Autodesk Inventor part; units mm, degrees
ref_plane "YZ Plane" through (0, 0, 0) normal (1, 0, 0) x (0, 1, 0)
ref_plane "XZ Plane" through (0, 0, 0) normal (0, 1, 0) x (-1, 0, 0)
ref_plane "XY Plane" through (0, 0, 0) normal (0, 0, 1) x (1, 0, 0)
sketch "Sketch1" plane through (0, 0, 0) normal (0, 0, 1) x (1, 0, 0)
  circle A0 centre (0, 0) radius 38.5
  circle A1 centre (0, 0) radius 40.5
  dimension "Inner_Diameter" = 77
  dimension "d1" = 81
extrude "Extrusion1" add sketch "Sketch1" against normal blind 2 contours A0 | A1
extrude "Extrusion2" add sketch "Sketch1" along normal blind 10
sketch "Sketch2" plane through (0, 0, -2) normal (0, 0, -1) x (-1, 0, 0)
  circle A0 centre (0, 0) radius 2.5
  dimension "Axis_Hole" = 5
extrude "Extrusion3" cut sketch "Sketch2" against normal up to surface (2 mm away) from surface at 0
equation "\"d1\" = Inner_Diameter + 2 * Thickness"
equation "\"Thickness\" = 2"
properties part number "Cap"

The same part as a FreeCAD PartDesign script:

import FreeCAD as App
import Part
import Sketcher
Q = App.Units.Quantity

doc = App.newDocument("Part")
body = doc.addObject("PartDesign::Body", "Body")

# Sketch on XY plane
sketch1 = body.newObject("Sketcher::SketchObject", "Sketch")
sketch1.AttachmentSupport = (doc.getObject("XY_Plane"), [""])
sketch1.MapMode = "FlatFace"
sketch1.addGeometry(Part.Circle(App.Vector(0, 0, 0), App.Vector(0, 0, 1), 40), False)
sketch1.addConstraint([
    Sketcher.Constraint("Coincident", 0, 3, -1, 1),
    Sketcher.Constraint("Diameter", 0, Q("81 mm")),
])
pad1 = body.newObject("PartDesign::Pad", "Pad")
pad1.Profile = sketch1
pad1.Length = 2
pad1.Reversed = True

# Sketch on XY plane
sketch2 = body.newObject("Sketcher::SketchObject", "Sketch001")
sketch2.AttachmentSupport = (doc.getObject("XY_Plane"), [""])
sketch2.MapMode = "FlatFace"
sketch2.addGeometry([
    Part.Circle(App.Vector(0, 0, 0), App.Vector(0, 0, 1), 40),
    Part.Circle(App.Vector(0, 0, 0), App.Vector(0, 0, 1), 38),
], False)
sketch2.addConstraint([
    Sketcher.Constraint("Coincident", 0, 3, -1, 1),
    Sketcher.Constraint("Coincident", 1, 3, -1, 1),
    Sketcher.Constraint("Diameter", 0, Q("81 mm")),
    Sketcher.Constraint("Diameter", 1, Q("77 mm")),
])
pad2 = body.newObject("PartDesign::Pad", "Pad001")
pad2.Profile = sketch2
pad2.Length = 10

# Sketch on XY plane
sketch3 = body.newObject("Sketcher::SketchObject", "Sketch002")
sketch3.AttachmentSupport = (doc.getObject("XY_Plane"), [""])
sketch3.MapMode = "FlatFace"
sketch3.AttachmentOffset = App.Placement(App.Vector(0, 0, -2), App.Rotation())
sketch3.addGeometry(Part.Circle(App.Vector(0, 0, 0), App.Vector(0, 0, 1), 2.5), False)
sketch3.addConstraint([
    Sketcher.Constraint("Coincident", 0, 3, -1, 1),
    Sketcher.Constraint("Diameter", 0, Q("5 mm")),
])
pocket1 = body.newObject("PartDesign::Pocket", "Pocket")
pocket1.Profile = sketch3
pocket1.Length = 2
pocket1.Reversed = True

doc.recompute()
